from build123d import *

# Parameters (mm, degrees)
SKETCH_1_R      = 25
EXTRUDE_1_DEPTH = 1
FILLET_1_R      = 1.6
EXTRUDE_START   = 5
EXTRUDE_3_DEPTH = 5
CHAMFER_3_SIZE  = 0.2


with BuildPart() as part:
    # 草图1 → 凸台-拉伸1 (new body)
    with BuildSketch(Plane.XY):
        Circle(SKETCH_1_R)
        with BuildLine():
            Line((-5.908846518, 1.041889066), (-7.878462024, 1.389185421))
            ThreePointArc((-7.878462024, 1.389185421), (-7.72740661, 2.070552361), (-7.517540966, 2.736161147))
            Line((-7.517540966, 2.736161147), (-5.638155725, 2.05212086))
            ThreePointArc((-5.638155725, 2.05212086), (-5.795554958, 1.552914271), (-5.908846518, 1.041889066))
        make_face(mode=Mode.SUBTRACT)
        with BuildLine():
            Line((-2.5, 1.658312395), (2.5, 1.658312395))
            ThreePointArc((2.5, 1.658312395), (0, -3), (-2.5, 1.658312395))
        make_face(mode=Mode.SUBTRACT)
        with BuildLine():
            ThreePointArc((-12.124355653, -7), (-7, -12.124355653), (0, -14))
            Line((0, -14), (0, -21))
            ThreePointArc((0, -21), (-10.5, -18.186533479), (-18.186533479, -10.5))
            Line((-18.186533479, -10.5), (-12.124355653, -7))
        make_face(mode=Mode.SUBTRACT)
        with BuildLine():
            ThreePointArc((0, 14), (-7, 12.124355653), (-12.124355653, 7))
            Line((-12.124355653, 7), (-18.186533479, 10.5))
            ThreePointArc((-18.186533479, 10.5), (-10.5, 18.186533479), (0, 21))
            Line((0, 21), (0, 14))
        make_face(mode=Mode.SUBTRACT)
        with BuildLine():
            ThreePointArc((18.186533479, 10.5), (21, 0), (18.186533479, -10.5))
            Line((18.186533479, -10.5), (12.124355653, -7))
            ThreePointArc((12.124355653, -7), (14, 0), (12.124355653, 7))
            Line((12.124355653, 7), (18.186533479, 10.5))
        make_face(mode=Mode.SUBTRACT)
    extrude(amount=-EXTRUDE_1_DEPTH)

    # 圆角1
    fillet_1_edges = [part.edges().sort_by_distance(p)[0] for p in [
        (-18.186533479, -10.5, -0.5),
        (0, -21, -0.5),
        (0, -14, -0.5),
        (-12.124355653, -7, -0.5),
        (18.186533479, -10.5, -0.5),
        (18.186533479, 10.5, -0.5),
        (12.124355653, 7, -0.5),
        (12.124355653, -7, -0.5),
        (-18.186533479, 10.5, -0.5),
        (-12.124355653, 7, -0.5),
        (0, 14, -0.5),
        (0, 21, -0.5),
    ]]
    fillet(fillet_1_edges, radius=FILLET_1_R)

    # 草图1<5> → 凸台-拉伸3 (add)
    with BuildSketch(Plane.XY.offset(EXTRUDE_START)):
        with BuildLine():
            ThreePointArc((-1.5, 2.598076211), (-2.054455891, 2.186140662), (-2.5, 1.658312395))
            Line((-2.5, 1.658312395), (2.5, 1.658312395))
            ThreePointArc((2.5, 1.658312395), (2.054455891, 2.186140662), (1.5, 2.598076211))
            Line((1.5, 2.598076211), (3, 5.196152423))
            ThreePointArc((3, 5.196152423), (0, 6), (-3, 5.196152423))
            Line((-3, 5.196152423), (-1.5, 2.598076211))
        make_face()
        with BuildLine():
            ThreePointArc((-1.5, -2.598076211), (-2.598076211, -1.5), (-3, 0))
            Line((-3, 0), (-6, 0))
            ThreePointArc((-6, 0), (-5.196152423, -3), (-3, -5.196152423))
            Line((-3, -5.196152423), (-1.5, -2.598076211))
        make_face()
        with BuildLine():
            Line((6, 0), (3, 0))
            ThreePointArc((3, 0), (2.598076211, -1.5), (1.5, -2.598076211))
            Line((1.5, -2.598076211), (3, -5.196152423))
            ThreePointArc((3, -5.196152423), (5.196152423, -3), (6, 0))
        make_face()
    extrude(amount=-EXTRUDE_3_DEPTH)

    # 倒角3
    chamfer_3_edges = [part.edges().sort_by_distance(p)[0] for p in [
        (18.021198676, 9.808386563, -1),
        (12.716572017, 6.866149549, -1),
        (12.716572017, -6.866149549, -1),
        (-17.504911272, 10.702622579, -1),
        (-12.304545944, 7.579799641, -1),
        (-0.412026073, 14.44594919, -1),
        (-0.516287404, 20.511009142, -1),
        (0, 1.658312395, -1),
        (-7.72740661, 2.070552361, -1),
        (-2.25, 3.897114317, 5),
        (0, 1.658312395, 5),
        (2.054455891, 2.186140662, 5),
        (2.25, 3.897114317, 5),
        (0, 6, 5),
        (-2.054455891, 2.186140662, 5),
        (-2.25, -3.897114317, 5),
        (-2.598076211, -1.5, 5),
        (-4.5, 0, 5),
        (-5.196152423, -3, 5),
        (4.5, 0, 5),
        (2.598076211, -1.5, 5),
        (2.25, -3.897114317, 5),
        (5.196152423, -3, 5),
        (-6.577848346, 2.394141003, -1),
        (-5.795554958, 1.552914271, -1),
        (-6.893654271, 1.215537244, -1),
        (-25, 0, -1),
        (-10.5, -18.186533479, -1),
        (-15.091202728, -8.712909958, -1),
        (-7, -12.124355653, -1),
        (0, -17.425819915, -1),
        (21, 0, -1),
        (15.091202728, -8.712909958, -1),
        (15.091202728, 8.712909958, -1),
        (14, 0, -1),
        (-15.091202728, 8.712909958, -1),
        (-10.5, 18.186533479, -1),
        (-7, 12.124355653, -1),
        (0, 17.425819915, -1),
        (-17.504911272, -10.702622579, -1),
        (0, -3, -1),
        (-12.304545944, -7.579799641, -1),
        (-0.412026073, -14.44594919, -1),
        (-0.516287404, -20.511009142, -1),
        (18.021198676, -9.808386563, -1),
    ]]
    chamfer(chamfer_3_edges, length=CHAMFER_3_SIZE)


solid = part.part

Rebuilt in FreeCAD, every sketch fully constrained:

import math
import FreeCAD as App
import Part
import Sketcher

V = App.Vector
Q = App.Units.Quantity


def edges_at(feature, points):
    """Names of the edges that pass closest to the given points."""
    edges = feature.Shape.Edges
    near = lambda p: min(range(len(edges)), key=lambda i: edges[i].distToShape(Part.Vertex(*p))[0])
    return sorted({f"Edge{near(p) + 1}" for p in points})

doc = App.newDocument("Part")
body = doc.addObject("PartDesign::Body", "Body")

sketch1 = body.newObject("Sketcher::SketchObject", "Sketch")
sketch1.AttachmentSupport = (doc.getObject("XY_Plane"), [""])
sketch1.MapMode = "FlatFace"
sketch1.addGeometry(Part.Circle(V(0, 0, 0), V(0, 0, 1), 25), False)
sketch1.addGeometry(Part.LineSegment(V(-18.2, -10.5, 0), V(-12.1, -7, 0)), False)
sketch1.addGeometry(Part.ArcOfCircle(Part.Circle(V(0, 0, 0), V(0, 0, 1), 14), math.radians(-150), math.radians(-90)), False)
sketch1.addGeometry(Part.LineSegment(V(0, -14, 0), V(0, -21, 0)), False)
sketch1.addGeometry(Part.ArcOfCircle(Part.Circle(V(0, 0, 0), V(0, 0, 1), 21), math.radians(-150), math.radians(-90)), False)
sketch1.addGeometry(Part.ArcOfCircle(Part.Circle(V(0, 0, 0), V(0, 0, 1), 3), math.radians(146), math.radians(394)), False)
sketch1.addGeometry(Part.LineSegment(V(-2.5, 1.7, 0), V(2.5, 1.7, 0)), False)
sketch1.addGeometry(Part.ArcOfCircle(Part.Circle(V(0, 0, 0), V(0, 0, 1), 6), math.radians(160), math.radians(170)), False)
sketch1.addGeometry(Part.LineSegment(V(-5.9, 1, 0), V(-7.9, 1.4, 0)), False)
sketch1.addGeometry(Part.ArcOfCircle(Part.Circle(V(0, 0, 0), V(0, 0, 1), 8), math.radians(160), math.radians(170)), False)
sketch1.addGeometry(Part.LineSegment(V(-7.5, 2.7, 0), V(-5.6, 2.1, 0)), False)
sketch1.addGeometry(Part.LineSegment(V(0, 21, 0), V(0, 14, 0)), False)
sketch1.addGeometry(Part.ArcOfCircle(Part.Circle(V(0, 0, 0), V(0, 0, 1), 14), math.radians(90), math.radians(150)), False)
sketch1.addGeometry(Part.LineSegment(V(-12.1, 7, 0), V(-18.2, 10.5, 0)), False)
sketch1.addGeometry(Part.ArcOfCircle(Part.Circle(V(0, 0, 0), V(0, 0, 1), 21), math.radians(90), math.radians(150)), False)
sketch1.addGeometry(Part.LineSegment(V(12.1, 7, 0), V(18.2, 10.5, 0)), False)
sketch1.addGeometry(Part.ArcOfCircle(Part.Circle(V(0, 0, 0), V(0, 0, 1), 21), math.radians(-30), math.radians(30)), False)
sketch1.addGeometry(Part.LineSegment(V(18.2, -10.5, 0), V(12.1, -7, 0)), False)
sketch1.addGeometry(Part.ArcOfCircle(Part.Circle(V(0, 0, 0), V(0, 0, 1), 14), math.radians(-30), math.radians(30)), False)
sketch1.addConstraint(Sketcher.Constraint("Coincident", 1, 2, 2, 1))
sketch1.addConstraint(Sketcher.Constraint("Coincident", 2, 2, 3, 1))
sketch1.addConstraint(Sketcher.Constraint("Coincident", 3, 2, 4, 2))
sketch1.addConstraint(Sketcher.Constraint("Coincident", 4, 1, 1, 1))
sketch1.addConstraint(Sketcher.Constraint("Coincident", 5, 1, 6, 1))
sketch1.addConstraint(Sketcher.Constraint("Coincident", 6, 2, 5, 2))
sketch1.addConstraint(Sketcher.Constraint("Coincident", 7, 2, 8, 1))
sketch1.addConstraint(Sketcher.Constraint("Coincident", 8, 2, 9, 2))
sketch1.addConstraint(Sketcher.Constraint("Coincident", 9, 1, 10, 1))
sketch1.addConstraint(Sketcher.Constraint("Coincident", 10, 2, 7, 1))
sketch1.addConstraint(Sketcher.Constraint("Coincident", 11, 2, 12, 1))
sketch1.addConstraint(Sketcher.Constraint("Coincident", 12, 2, 13, 1))
sketch1.addConstraint(Sketcher.Constraint("Coincident", 13, 2, 14, 2))
sketch1.addConstraint(Sketcher.Constraint("Coincident", 14, 1, 11, 1))
sketch1.addConstraint(Sketcher.Constraint("Coincident", 15, 2, 16, 2))
sketch1.addConstraint(Sketcher.Constraint("Coincident", 16, 1, 17, 1))
sketch1.addConstraint(Sketcher.Constraint("Coincident", 17, 2, 18, 1))
sketch1.addConstraint(Sketcher.Constraint("Coincident", 18, 2, 15, 1))
sketch1.addConstraint(Sketcher.Constraint("Vertical", 3))
sketch1.addConstraint(Sketcher.Constraint("Horizontal", 6))
sketch1.addConstraint(Sketcher.Constraint("Vertical", 11))
sketch1.addConstraint(Sketcher.Constraint("Coincident", 0, 3, -1, 1))
sketch1.addConstraint(Sketcher.Constraint("Coincident", 2, 3, -1, 1))
sketch1.addConstraint(Sketcher.Constraint("Coincident", 4, 3, -1, 1))
sketch1.addConstraint(Sketcher.Constraint("Coincident", 5, 3, -1, 1))
sketch1.addConstraint(Sketcher.Constraint("Coincident", 7, 3, -1, 1))
sketch1.addConstraint(Sketcher.Constraint("Coincident", 9, 3, -1, 1))
sketch1.addConstraint(Sketcher.Constraint("Coincident", 12, 3, -1, 1))
sketch1.addConstraint(Sketcher.Constraint("Coincident", 14, 3, -1, 1))
sketch1.addConstraint(Sketcher.Constraint("Coincident", 16, 3, -1, 1))
sketch1.addConstraint(Sketcher.Constraint("Coincident", 18, 3, -1, 1))
sketch1.addConstraint(Sketcher.Constraint("Equal", 2, 12))
sketch1.addConstraint(Sketcher.Constraint("Equal", 4, 14))
sketch1.addConstraint(Sketcher.Constraint("Equal", 14, 16))
sketch1.addConstraint(Sketcher.Constraint("Equal", 12, 18))
sketch1.addConstraint(Sketcher.Constraint("PointOnObject", 2, 2, -2))
sketch1.addConstraint(Sketcher.Constraint("PointOnObject", 11, 2, -2))
sketch1.addConstraint(Sketcher.Constraint("Parallel", 1, 15))
sketch1.addConstraint(Sketcher.Constraint("Parallel", 13, 17))
sketch1.addConstraint(Sketcher.Constraint("Horizontal", 13, 2, 15, 2))
sketch1.addConstraint(Sketcher.Constraint("Horizontal", 4, 1, 16, 1))
sketch1.addConstraint(Sketcher.Constraint("Horizontal", 1, 2, 17, 2))
sketch1.addConstraint(Sketcher.Constraint("Vertical", 1, 2, 12, 2))
sketch1.addConstraint(Sketcher.Constraint("Diameter", 0, Q("50 mm")))
sketch1.addConstraint(Sketcher.Constraint("Radius", 2, Q("14 mm")))
sketch1.addConstraint(Sketcher.Constraint("Radius", 4, Q("21 mm")))
sketch1.addConstraint(Sketcher.Constraint("Radius", 5, Q("3 mm")))
sketch1.addConstraint(Sketcher.Constraint("Radius", 7, Q("6 mm")))
sketch1.addConstraint(Sketcher.Constraint("Radius", 9, Q("8 mm")))
sketch1.addConstraint(Sketcher.Constraint("DistanceX", 6, 1, 6, 2, Q("5 mm")))
sketch1.addConstraint(Sketcher.Constraint("Angle", 1, Q("30 deg")))
sketch1.addConstraint(Sketcher.Constraint("Angle", 8, Q("170 deg")))
sketch1.addConstraint(Sketcher.Constraint("Angle", 10, Q("-20 deg")))
sketch1.addConstraint(Sketcher.Constraint("DistanceY", 1, 2, -1, 1, Q("7 mm")))
sketch1.addConstraint(Sketcher.Constraint("DistanceX", 12, 2, 10, 2, Q("6.4862 mm")))
sketch1.addConstraint(Sketcher.Constraint("DistanceY", -1, 1, 7, 2, Q("1.041889 mm")))
pad1 = body.newObject("PartDesign::Pad", "Pad")
pad1.Profile = sketch1
pad1.Length = 1
pad1.Reversed = True
doc.recompute()

fillet = body.newObject("PartDesign::Fillet", "Fillet")
fillet.Base = (pad1, edges_at(pad1, [
    (-18.187, -10.5, -0.5),
    (0, -21, -0.5),
    (0, -14, -0.5),
    (-12.124, -7, -0.5),
    (18.187, -10.5, -0.5),
    (18.187, 10.5, -0.5),
    (12.124, 7, -0.5),
    (12.124, -7, -0.5),
    (-18.187, 10.5, -0.5),
    (-12.124, 7, -0.5),
    (0, 14, -0.5),
    (0, 21, -0.5),
]))
fillet.Radius = 1.6

sketch2 = body.newObject("Sketcher::SketchObject", "Sketch001")
sketch2.AttachmentSupport = (doc.getObject("XY_Plane"), [""])
sketch2.MapMode = "FlatFace"
sketch2.AttachmentOffset = App.Placement(V(0, 0, 5), App.Rotation())
sketch2.addGeometry(Part.ArcOfCircle(Part.Circle(V(0, 0, 0), V(0, 0, 1), 3), math.radians(120), math.radians(146)), False)
sketch2.addGeometry(Part.LineSegment(V(-2.5, 1.7, 0), V(2.5, 1.7, 0)), False)
sketch2.addGeometry(Part.ArcOfCircle(Part.Circle(V(0, 0, 0), V(0, 0, 1), 3), math.radians(34), math.radians(60)), False)
sketch2.addGeometry(Part.LineSegment(V(1.5, 2.6, 0), V(3, 5.2, 0)), False)
sketch2.addGeometry(Part.ArcOfCircle(Part.Circle(V(0, 0, 0), V(0, 0, 1), 6), math.radians(60), math.radians(120)), False)
sketch2.addGeometry(Part.LineSegment(V(-3, 5.2, 0), V(-1.5, 2.6, 0)), False)
sketch2.addGeometry(Part.ArcOfCircle(Part.Circle(V(0, 0, 0), V(0, 0, 1), 3), math.radians(-180), math.radians(-120)), False)
sketch2.addGeometry(Part.LineSegment(V(-3, 0, 0), V(-6, 0, 0)), False)
sketch2.addGeometry(Part.ArcOfCircle(Part.Circle(V(0, 0, 0), V(0, 0, 1), 6), math.radians(180), math.radians(240)), False)
sketch2.addGeometry(Part.LineSegment(V(-3, -5.2, 0), V(-1.5, -2.6, 0)), False)
sketch2.addGeometry(Part.LineSegment(V(6, 0, 0), V(3, 0, 0)), False)
sketch2.addGeometry(Part.ArcOfCircle(Part.Circle(V(0, 0, 0), V(0, 0, 1), 3), math.radians(-60), math.radians(0)), False)
sketch2.addGeometry(Part.LineSegment(V(1.5, -2.6, 0), V(3, -5.2, 0)), False)
sketch2.addGeometry(Part.ArcOfCircle(Part.Circle(V(0, 0, 0), V(0, 0, 1), 6), math.radians(-60), math.radians(0)), False)
sketch2.addConstraint(Sketcher.Constraint("Coincident", 0, 2, 1, 1))
sketch2.addConstraint(Sketcher.Constraint("Coincident", 1, 2, 2, 1))
sketch2.addConstraint(Sketcher.Constraint("Coincident", 2, 2, 3, 1))
sketch2.addConstraint(Sketcher.Constraint("Coincident", 3, 2, 4, 1))
sketch2.addConstraint(Sketcher.Constraint("Coincident", 4, 2, 5, 1))
sketch2.addConstraint(Sketcher.Constraint("Coincident", 5, 2, 0, 1))
sketch2.addConstraint(Sketcher.Constraint("Coincident", 6, 1, 7, 1))
sketch2.addConstraint(Sketcher.Constraint("Coincident", 7, 2, 8, 1))
sketch2.addConstraint(Sketcher.Constraint("Coincident", 8, 2, 9, 1))
sketch2.addConstraint(Sketcher.Constraint("Coincident", 9, 2, 6, 2))
sketch2.addConstraint(Sketcher.Constraint("Coincident", 10, 2, 11, 2))
sketch2.addConstraint(Sketcher.Constraint("Coincident", 11, 1, 12, 1))
sketch2.addConstraint(Sketcher.Constraint("Coincident", 12, 2, 13, 1))
sketch2.addConstraint(Sketcher.Constraint("Coincident", 13, 2, 10, 1))
sketch2.addConstraint(Sketcher.Constraint("Horizontal", 1))
sketch2.addConstraint(Sketcher.Constraint("Horizontal", 7))
sketch2.addConstraint(Sketcher.Constraint("Horizontal", 10))
sketch2.addConstraint(Sketcher.Constraint("Coincident", 0, 3, -1, 1))
sketch2.addConstraint(Sketcher.Constraint("Coincident", 2, 3, -1, 1))
sketch2.addConstraint(Sketcher.Constraint("Coincident", 4, 3, -1, 1))
sketch2.addConstraint(Sketcher.Constraint("Coincident", 6, 3, -1, 1))
sketch2.addConstraint(Sketcher.Constraint("Coincident", 8, 3, -1, 1))
sketch2.addConstraint(Sketcher.Constraint("Coincident", 11, 3, -1, 1))
sketch2.addConstraint(Sketcher.Constraint("Coincident", 13, 3, -1, 1))
sketch2.addConstraint(Sketcher.Constraint("Equal", 0, 2))
sketch2.addConstraint(Sketcher.Constraint("Equal", 2, 6))
sketch2.addConstraint(Sketcher.Constraint("Equal", 4, 8))
sketch2.addConstraint(Sketcher.Constraint("Equal", 6, 11))
sketch2.addConstraint(Sketcher.Constraint("Equal", 8, 13))
sketch2.addConstraint(Sketcher.Constraint("PointOnObject", 6, 1, -1))
sketch2.addConstraint(Sketcher.Constraint("PointOnObject", 10, 2, -1))
sketch2.addConstraint(Sketcher.Constraint("Parallel", 3, 9))
sketch2.addConstraint(Sketcher.Constraint("Parallel", 5, 12))
sketch2.addConstraint(Sketcher.Constraint("Horizontal", 3, 2, 4, 2))
sketch2.addConstraint(Sketcher.Constraint("Horizontal", 2, 2, 5, 2))
sketch2.addConstraint(Sketcher.Constraint("Horizontal", 9, 2, 11, 1))
sketch2.addConstraint(Sketcher.Constraint("Vertical", 4, 2, 6, 1))
sketch2.addConstraint(Sketcher.Constraint("Vertical", 6, 1, 8, 2))
sketch2.addConstraint(Sketcher.Constraint("Radius", 0, Q("3 mm")))
sketch2.addConstraint(Sketcher.Constraint("Radius", 4, Q("6 mm")))
sketch2.addConstraint(Sketcher.Constraint("DistanceX", 1, 1, 1, 2, Q("5 mm")))
sketch2.addConstraint(Sketcher.Constraint("Angle", 3, Q("60 deg")))
pad2 = body.newObject("PartDesign::Pad", "Pad001")
pad2.Profile = sketch2
pad2.Length = 5
pad2.Reversed = True
doc.recompute()

chamfer = body.newObject("PartDesign::Chamfer", "Chamfer")
chamfer.Base = (pad2, edges_at(pad2, [
    (18.021, 9.808, -1),
    (12.717, 6.866, -1),
    (12.717, -6.866, -1),
    (-17.505, 10.703, -1),
    (-12.305, 7.58, -1),
    (-0.412, 14.446, -1),
    (-0.516, 20.511, -1),
    (0, 1.658, -1),
    (-7.727, 2.071, -1),
    (-2.25, 3.897, 5),
    (0, 1.658, 5),
    (2.054, 2.186, 5),
    (2.25, 3.897, 5),
    (0, 6, 5),
    (-2.054, 2.186, 5),
    (-2.25, -3.897, 5),
    (-2.598, -1.5, 5),
    (-4.5, 0, 5),
    (-5.196, -3, 5),
    (4.5, 0, 5),
    (2.598, -1.5, 5),
    (2.25, -3.897, 5),
    (5.196, -3, 5),
    (-6.578, 2.394, -1),
    (-5.796, 1.553, -1),
    (-6.894, 1.216, -1),
    (-25, 0, -1),
    (-10.5, -18.187, -1),
    (-15.091, -8.713, -1),
    (-7, -12.124, -1),
    (0, -17.426, -1),
    (21, 0, -1),
    (15.091, -8.713, -1),
    (15.091, 8.713, -1),
    (14, 0, -1),
    (-15.091, 8.713, -1),
    (-10.5, 18.187, -1),
    (-7, 12.124, -1),
    (0, 17.426, -1),
    (-17.505, -10.703, -1),
    (0, -3, -1),
    (-12.305, -7.58, -1),
    (-0.412, -14.446, -1),
    (-0.516, -20.511, -1),
    (18.021, -9.808, -1),
]))
chamfer.Size = 0.2

doc.recompute()
